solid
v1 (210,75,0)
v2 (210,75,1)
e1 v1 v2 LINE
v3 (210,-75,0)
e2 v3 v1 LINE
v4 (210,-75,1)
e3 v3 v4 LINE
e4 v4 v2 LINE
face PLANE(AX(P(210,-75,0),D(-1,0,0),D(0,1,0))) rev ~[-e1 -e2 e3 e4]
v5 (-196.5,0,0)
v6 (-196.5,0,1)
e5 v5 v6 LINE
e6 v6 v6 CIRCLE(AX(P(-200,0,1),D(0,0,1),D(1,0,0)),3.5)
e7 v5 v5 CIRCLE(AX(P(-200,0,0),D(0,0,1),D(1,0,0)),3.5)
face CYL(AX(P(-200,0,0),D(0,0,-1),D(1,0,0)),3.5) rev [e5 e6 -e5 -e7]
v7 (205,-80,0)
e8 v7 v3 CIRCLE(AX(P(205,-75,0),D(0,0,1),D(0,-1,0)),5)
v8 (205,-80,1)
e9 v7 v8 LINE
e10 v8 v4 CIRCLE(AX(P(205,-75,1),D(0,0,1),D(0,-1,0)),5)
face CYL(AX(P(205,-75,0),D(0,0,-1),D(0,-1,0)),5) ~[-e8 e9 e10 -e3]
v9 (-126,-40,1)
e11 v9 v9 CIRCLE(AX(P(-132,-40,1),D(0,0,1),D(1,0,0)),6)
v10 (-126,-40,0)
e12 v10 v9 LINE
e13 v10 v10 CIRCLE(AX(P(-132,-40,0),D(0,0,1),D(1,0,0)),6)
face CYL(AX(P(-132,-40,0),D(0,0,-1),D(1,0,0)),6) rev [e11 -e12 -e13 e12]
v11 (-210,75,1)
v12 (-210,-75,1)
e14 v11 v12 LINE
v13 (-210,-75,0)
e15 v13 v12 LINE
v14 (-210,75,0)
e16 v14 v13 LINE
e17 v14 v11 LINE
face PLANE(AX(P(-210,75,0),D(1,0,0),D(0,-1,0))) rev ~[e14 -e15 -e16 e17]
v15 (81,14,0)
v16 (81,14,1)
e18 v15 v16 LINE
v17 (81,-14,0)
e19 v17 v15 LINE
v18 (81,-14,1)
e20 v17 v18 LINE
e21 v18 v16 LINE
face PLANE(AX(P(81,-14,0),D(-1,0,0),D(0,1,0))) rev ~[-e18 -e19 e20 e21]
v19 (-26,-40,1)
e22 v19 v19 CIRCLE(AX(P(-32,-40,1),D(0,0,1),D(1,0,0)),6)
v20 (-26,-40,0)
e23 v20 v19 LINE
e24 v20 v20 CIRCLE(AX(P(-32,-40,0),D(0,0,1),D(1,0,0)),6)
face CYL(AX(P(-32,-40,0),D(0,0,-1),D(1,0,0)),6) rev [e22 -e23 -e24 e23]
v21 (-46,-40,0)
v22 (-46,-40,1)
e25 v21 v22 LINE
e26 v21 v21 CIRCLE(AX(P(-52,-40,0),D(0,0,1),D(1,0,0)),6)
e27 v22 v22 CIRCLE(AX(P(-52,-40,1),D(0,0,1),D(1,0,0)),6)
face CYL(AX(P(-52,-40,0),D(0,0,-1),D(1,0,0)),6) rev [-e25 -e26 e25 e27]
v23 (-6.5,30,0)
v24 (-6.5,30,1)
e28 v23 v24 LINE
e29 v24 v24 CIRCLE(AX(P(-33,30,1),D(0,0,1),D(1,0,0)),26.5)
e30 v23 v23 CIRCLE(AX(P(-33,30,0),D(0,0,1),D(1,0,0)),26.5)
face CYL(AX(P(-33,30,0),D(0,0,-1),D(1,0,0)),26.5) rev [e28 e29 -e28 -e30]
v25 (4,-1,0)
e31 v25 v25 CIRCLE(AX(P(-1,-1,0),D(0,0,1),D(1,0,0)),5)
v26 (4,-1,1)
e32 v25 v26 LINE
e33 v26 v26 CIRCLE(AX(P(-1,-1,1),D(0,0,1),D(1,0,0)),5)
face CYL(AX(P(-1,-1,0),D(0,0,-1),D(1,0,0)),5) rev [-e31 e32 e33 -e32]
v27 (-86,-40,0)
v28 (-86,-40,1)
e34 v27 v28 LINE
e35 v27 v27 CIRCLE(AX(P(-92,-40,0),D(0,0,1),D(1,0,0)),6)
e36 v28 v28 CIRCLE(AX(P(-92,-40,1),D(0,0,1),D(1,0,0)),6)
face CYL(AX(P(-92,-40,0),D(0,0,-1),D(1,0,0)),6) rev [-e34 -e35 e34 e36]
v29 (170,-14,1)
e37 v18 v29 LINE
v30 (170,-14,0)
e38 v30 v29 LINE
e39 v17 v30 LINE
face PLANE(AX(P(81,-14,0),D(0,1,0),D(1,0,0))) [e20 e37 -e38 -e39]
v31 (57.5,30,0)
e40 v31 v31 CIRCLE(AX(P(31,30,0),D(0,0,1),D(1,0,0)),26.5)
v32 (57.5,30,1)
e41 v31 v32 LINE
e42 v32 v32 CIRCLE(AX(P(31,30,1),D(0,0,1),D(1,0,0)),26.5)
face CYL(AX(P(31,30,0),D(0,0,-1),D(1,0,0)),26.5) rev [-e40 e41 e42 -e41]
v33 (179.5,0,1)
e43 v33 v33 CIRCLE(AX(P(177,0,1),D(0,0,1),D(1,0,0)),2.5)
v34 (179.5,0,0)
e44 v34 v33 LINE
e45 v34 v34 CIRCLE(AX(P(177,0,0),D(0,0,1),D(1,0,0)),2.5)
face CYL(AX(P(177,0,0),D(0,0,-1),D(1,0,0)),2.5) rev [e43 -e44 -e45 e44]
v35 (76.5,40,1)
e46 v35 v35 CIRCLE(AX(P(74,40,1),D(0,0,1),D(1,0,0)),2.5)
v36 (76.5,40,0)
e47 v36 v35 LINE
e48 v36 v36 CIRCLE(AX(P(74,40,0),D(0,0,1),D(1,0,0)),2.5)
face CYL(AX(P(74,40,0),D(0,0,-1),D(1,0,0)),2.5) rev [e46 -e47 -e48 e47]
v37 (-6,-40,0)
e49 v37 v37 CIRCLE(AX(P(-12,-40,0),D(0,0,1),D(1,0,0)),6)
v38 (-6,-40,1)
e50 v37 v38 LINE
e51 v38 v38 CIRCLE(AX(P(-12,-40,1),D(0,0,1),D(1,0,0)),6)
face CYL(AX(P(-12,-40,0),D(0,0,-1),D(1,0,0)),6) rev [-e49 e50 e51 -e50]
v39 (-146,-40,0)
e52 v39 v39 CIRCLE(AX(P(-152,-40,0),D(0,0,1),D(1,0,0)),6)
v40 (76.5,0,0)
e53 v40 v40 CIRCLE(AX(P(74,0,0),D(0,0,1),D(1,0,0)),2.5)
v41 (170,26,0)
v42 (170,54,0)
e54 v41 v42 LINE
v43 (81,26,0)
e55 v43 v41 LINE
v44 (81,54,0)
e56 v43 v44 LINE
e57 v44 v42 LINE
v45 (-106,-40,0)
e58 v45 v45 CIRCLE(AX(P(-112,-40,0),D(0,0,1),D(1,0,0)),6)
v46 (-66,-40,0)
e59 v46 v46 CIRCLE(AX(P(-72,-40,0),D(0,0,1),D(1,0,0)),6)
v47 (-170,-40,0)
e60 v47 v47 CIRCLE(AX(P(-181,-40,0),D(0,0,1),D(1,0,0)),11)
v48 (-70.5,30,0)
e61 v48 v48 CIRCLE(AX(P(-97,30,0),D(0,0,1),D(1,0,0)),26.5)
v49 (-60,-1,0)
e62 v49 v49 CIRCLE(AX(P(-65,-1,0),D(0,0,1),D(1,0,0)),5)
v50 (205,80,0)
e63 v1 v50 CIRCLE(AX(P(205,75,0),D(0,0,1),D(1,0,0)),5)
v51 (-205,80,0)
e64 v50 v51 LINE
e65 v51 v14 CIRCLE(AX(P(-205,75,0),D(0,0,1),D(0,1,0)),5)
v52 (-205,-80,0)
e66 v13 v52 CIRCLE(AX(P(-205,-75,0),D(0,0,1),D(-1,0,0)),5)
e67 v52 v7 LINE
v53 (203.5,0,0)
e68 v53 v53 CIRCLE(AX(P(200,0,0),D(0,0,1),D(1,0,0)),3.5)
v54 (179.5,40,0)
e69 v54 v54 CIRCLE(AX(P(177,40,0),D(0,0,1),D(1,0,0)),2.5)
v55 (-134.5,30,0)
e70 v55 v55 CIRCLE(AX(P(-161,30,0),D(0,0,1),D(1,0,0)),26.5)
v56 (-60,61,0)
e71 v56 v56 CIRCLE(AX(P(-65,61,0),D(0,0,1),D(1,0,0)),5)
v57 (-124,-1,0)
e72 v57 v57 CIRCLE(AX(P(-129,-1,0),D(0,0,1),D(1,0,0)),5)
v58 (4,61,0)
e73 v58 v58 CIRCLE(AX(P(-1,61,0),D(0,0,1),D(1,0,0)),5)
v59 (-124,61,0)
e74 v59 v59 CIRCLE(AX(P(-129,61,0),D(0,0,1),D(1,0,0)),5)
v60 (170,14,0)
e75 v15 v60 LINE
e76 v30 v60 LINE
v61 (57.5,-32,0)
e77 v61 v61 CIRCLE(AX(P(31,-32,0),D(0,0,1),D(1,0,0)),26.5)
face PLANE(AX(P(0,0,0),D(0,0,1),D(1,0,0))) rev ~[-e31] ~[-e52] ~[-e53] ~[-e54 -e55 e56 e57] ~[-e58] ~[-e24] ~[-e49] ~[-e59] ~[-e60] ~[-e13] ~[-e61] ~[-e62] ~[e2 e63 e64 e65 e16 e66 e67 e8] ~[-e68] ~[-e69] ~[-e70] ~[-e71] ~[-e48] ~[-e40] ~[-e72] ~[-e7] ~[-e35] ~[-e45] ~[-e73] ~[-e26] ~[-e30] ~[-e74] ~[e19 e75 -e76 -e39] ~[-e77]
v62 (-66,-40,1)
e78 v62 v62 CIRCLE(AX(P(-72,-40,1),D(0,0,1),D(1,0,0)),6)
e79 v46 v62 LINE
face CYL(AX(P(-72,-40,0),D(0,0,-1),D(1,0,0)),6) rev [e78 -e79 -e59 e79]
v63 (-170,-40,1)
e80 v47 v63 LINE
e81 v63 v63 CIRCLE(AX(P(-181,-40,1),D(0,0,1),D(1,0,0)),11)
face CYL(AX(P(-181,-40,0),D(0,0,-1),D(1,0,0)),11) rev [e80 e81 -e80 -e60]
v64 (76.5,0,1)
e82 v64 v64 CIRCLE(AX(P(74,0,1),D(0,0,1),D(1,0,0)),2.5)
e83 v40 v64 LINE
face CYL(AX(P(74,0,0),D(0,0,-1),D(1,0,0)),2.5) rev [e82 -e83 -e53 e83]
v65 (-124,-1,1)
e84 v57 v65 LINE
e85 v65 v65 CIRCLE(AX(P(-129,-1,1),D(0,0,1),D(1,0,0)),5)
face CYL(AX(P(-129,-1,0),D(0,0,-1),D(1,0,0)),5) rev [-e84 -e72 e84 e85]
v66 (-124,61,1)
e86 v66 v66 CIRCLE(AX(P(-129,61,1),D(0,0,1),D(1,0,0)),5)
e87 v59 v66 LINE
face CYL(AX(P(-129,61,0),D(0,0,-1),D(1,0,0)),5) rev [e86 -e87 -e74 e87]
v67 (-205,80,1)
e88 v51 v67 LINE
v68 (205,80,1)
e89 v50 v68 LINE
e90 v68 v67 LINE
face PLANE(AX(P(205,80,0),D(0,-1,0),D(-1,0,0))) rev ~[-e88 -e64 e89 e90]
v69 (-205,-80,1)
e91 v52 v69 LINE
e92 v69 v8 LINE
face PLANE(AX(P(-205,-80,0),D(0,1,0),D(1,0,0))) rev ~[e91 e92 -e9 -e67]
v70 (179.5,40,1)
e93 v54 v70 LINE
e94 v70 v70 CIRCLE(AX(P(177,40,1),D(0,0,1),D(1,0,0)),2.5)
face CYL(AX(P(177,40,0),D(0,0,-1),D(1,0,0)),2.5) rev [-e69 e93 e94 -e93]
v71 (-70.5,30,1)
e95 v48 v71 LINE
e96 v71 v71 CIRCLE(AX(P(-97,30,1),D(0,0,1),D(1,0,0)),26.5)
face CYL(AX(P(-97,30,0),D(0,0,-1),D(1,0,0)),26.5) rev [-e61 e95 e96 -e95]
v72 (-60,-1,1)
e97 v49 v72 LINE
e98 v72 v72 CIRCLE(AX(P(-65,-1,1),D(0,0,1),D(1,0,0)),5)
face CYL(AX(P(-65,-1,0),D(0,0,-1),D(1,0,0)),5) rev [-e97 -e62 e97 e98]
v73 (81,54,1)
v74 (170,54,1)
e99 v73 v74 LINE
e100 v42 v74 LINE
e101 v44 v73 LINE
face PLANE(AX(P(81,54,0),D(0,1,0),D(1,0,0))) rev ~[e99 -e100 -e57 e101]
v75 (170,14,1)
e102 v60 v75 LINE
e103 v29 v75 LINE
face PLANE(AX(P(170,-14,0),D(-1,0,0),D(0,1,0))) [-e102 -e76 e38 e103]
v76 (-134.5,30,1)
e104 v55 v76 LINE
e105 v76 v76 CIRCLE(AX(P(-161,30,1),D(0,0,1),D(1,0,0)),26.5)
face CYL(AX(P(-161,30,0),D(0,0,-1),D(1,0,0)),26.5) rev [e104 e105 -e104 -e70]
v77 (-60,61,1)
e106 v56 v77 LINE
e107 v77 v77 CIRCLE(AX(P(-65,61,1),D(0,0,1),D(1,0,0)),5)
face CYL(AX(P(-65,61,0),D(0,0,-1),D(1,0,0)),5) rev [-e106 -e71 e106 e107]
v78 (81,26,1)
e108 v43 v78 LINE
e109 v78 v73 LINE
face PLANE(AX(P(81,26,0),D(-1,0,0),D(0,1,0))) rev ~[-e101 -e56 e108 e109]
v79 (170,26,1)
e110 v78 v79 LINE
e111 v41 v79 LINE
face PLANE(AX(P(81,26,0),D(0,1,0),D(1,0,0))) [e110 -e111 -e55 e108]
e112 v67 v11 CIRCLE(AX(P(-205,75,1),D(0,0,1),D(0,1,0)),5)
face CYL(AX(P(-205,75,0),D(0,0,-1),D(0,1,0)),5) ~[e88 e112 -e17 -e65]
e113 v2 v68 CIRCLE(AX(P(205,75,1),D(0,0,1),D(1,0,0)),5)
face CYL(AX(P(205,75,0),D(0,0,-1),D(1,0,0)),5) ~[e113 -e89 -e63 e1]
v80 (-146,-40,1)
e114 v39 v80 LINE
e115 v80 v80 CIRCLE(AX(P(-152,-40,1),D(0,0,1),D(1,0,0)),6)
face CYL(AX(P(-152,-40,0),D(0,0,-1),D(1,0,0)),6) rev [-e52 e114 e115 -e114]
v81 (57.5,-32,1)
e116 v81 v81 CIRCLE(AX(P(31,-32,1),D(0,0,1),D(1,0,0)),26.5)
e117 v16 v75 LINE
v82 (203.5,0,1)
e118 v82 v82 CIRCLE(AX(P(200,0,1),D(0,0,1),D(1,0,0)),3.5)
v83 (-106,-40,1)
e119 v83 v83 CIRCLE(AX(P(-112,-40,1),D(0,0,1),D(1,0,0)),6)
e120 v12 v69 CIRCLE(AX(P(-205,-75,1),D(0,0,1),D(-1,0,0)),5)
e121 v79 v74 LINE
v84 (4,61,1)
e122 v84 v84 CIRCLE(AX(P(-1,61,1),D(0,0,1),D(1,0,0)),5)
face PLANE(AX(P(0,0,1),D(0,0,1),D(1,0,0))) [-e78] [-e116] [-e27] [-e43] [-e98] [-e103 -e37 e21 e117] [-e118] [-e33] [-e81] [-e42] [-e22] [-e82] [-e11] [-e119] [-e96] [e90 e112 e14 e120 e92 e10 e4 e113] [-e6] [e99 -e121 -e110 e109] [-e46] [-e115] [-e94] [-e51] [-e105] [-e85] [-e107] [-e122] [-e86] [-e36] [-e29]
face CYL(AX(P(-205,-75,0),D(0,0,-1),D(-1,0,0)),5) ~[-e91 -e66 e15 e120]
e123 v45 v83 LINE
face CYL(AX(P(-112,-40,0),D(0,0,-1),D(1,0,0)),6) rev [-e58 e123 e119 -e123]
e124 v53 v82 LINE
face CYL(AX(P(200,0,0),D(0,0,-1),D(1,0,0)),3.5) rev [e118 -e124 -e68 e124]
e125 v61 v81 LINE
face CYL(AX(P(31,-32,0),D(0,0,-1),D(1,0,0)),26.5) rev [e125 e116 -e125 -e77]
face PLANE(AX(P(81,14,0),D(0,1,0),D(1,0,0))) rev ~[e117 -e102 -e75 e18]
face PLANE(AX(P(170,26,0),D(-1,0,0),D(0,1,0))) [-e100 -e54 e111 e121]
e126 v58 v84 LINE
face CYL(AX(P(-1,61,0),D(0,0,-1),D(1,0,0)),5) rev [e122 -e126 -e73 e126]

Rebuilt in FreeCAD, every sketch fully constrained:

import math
import FreeCAD as App
import Part
import Sketcher
from FreeCAD import Vector


def add_polygon(sketch, points):
    """Adds a closed chain of lines whose ends are joined by coincident constraints."""
    first, n = sketch.GeometryCount, len(points)
    for a, b in zip(points, points[1:] + points[:1]):
        sketch.addGeometry(Part.LineSegment(App.Vector(*a, 0), App.Vector(*b, 0)), False)
    for i in range(n):
        sketch.addConstraint(Sketcher.Constraint("Coincident", first + i, 2, first + (i + 1) % n, 1))

doc = App.newDocument("Part")
body = doc.addObject("PartDesign::Body", "Body")

# Sketch on XY plane
sketch1 = body.newObject("Sketcher::SketchObject", "Sketch")
sketch1.AttachmentSupport = (doc.getObject("XY_Plane"), [""])
sketch1.MapMode = "FlatFace"
sketch1.addGeometry(Part.LineSegment(Vector(205, 80, 0), Vector(-205, 80, 0)), False)  # 0
sketch1.addGeometry(Part.ArcOfCircle(Part.Circle(Vector(-205, 75, 0), Vector(0, 0, 1), 5), math.radians(90), math.radians(180)), False)  # 1
sketch1.addGeometry(Part.LineSegment(Vector(-210, 75, 0), Vector(-210, -75, 0)), False)  # 2
sketch1.addGeometry(Part.ArcOfCircle(Part.Circle(Vector(-205, -75, 0), Vector(0, 0, 1), 5), math.radians(180), math.radians(270)), False)  # 3
sketch1.addGeometry(Part.LineSegment(Vector(-205, -80, 0), Vector(205, -80, 0)), False)  # 4
sketch1.addGeometry(Part.ArcOfCircle(Part.Circle(Vector(205, -75, 0), Vector(0, 0, 1), 5), math.radians(-90), math.radians(0)), False)  # 5
sketch1.addGeometry(Part.LineSegment(Vector(210, -75, 0), Vector(210, 75, 0)), False)  # 6
sketch1.addGeometry(Part.ArcOfCircle(Part.Circle(Vector(205, 75, 0), Vector(0, 0, 1), 5), math.radians(0), math.radians(90)), False)  # 7
sketch1.addGeometry(Part.Circle(Vector(-181, -40, 0), Vector(0, 0, 1), 11), False)  # 8
sketch1.addGeometry(Part.Circle(Vector(-152, -40, 0), Vector(0, 0, 1), 6), False)  # 9
sketch1.addGeometry(Part.Circle(Vector(-132, -40, 0), Vector(0, 0, 1), 6), False)  # 10
sketch1.addGeometry(Part.Circle(Vector(-112, -40, 0), Vector(0, 0, 1), 6), False)  # 11
sketch1.addGeometry(Part.Circle(Vector(-92, -40, 0), Vector(0, 0, 1), 6), False)  # 12
sketch1.addGeometry(Part.Circle(Vector(-72, -40, 0), Vector(0, 0, 1), 6), False)  # 13
sketch1.addGeometry(Part.Circle(Vector(-52, -40, 0), Vector(0, 0, 1), 6), False)  # 14
sketch1.addGeometry(Part.Circle(Vector(-32, -40, 0), Vector(0, 0, 1), 6), False)  # 15
sketch1.addGeometry(Part.Circle(Vector(-12, -40, 0), Vector(0, 0, 1), 6), False)  # 16
sketch1.addGeometry(Part.Circle(Vector(-200, 0, 0), Vector(0, 0, 1), 3.5), False)  # 17
sketch1.addGeometry(Part.Circle(Vector(-129, -1, 0), Vector(0, 0, 1), 5), False)  # 18
sketch1.addGeometry(Part.Circle(Vector(-65, -1, 0), Vector(0, 0, 1), 5), False)  # 19
sketch1.addGeometry(Part.Circle(Vector(-1, -1, 0), Vector(0, 0, 1), 5), False)  # 20
sketch1.addGeometry(Part.Circle(Vector(31, -32, 0), Vector(0, 0, 1), 26.5), False)  # 21
sketch1.addGeometry(Part.Circle(Vector(74, 0, 0), Vector(0, 0, 1), 2.5), False)  # 22
add_polygon(sketch1, [(170, -14), (81, -14), (81, 14), (170, 14)])  # lines 23-26
sketch1.addGeometry(Part.Circle(Vector(177, 0, 0), Vector(0, 0, 1), 2.5), False)  # 27
sketch1.addGeometry(Part.Circle(Vector(200, 0, 0), Vector(0, 0, 1), 3.5), False)  # 28
sketch1.addGeometry(Part.Circle(Vector(-161, 30, 0), Vector(0, 0, 1), 26.5), False)  # 29
sketch1.addGeometry(Part.Circle(Vector(-97, 30, 0), Vector(0, 0, 1), 26.5), False)  # 30
sketch1.addGeometry(Part.Circle(Vector(-33, 30, 0), Vector(0, 0, 1), 26.5), False)  # 31
sketch1.addGeometry(Part.Circle(Vector(-129, 61, 0), Vector(0, 0, 1), 5), False)  # 32
sketch1.addGeometry(Part.Circle(Vector(-65, 61, 0), Vector(0, 0, 1), 5), False)  # 33
sketch1.addGeometry(Part.Circle(Vector(-1, 61, 0), Vector(0, 0, 1), 5), False)  # 34
sketch1.addGeometry(Part.Circle(Vector(31, 30, 0), Vector(0, 0, 1), 26.5), False)  # 35
sketch1.addGeometry(Part.Circle(Vector(74, 40, 0), Vector(0, 0, 1), 2.5), False)  # 36
add_polygon(sketch1, [(170, 26), (81, 26), (81, 54), (170, 54)])  # lines 37-40
sketch1.addGeometry(Part.Circle(Vector(177, 40, 0), Vector(0, 0, 1), 2.5), False)  # 41
sketch1.addConstraint([
    Sketcher.Constraint("Tangent", 0, 2, 1, 1),
    Sketcher.Constraint("Tangent", 1, 2, 2, 1),
    Sketcher.Constraint("Tangent", 2, 2, 3, 1),
    Sketcher.Constraint("Tangent", 3, 2, 4, 1),
    Sketcher.Constraint("Tangent", 4, 2, 5, 1),
    Sketcher.Constraint("Tangent", 5, 2, 6, 1),
    Sketcher.Constraint("Tangent", 6, 2, 7, 1),
    Sketcher.Constraint("Tangent", 7, 2, 0, 1),
    Sketcher.Constraint("Horizontal", 0),
    Sketcher.Constraint("Vertical", 2),
    Sketcher.Constraint("Horizontal", 4),
    Sketcher.Constraint("Vertical", 6),
    Sketcher.Constraint("Horizontal", 23),
    Sketcher.Constraint("Vertical", 24),
    Sketcher.Constraint("Horizontal", 25),
    Sketcher.Constraint("Vertical", 26),
    Sketcher.Constraint("Horizontal", 37),
    Sketcher.Constraint("Vertical", 38),
    Sketcher.Constraint("Horizontal", 39),
    Sketcher.Constraint("Vertical", 40),
    Sketcher.Constraint("Equal", 1, 3),
    Sketcher.Constraint("Equal", 3, 5),
    Sketcher.Constraint("Equal", 5, 7),
    Sketcher.Constraint("Equal", 9, 10),
    Sketcher.Constraint("Equal", 10, 11),
    Sketcher.Constraint("Equal", 11, 12),
    Sketcher.Constraint("Equal", 12, 13),
    Sketcher.Constraint("Equal", 13, 14),
    Sketcher.Constraint("Equal", 14, 15),
    Sketcher.Constraint("Equal", 15, 16),
    Sketcher.Constraint("Equal", 7, 18),
    Sketcher.Constraint("Equal", 18, 19),
    Sketcher.Constraint("Equal", 19, 20),
    Sketcher.Constraint("Equal", 22, 27),
    Sketcher.Constraint("Equal", 17, 28),
    Sketcher.Constraint("Equal", 21, 29),
    Sketcher.Constraint("Equal", 29, 30),
    Sketcher.Constraint("Equal", 30, 31),
    Sketcher.Constraint("Equal", 20, 32),
    Sketcher.Constraint("Equal", 32, 33),
    Sketcher.Constraint("Equal", 33, 34),
    Sketcher.Constraint("Equal", 31, 35),
    Sketcher.Constraint("Equal", 27, 36),
    Sketcher.Constraint("Equal", 36, 41),
    Sketcher.Constraint("Symmetric", 1, 3, 5, 3, -1, 1),
    Sketcher.Constraint("Symmetric", 17, 3, 28, 3, -1, 1),
    Sketcher.Constraint("PointOnObject", 17, 3, -1),
    Sketcher.Constraint("PointOnObject", 22, 3, -1),
    Sketcher.Constraint("PointOnObject", 27, 3, -1),
    Sketcher.Constraint("Horizontal", 8, 3, 9, 3),
    Sketcher.Constraint("Horizontal", 9, 3, 10, 3),
    Sketcher.Constraint("Horizontal", 10, 3, 11, 3),
    Sketcher.Constraint("Horizontal", 11, 3, 12, 3),
    Sketcher.Constraint("Horizontal", 12, 3, 13, 3),
    Sketcher.Constraint("Horizontal", 13, 3, 14, 3),
    Sketcher.Constraint("Horizontal", 14, 3, 15, 3),
    Sketcher.Constraint("Horizontal", 15, 3, 16, 3),
    Sketcher.Constraint("Horizontal", 18, 3, 19, 3),
    Sketcher.Constraint("Horizontal", 19, 3, 20, 3),
    Sketcher.Constraint("Horizontal", 29, 3, 30, 3),
    Sketcher.Constraint("Horizontal", 30, 3, 31, 3),
    Sketcher.Constraint("Horizontal", 32, 3, 33, 3),
    Sketcher.Constraint("Horizontal", 33, 3, 34, 3),
    Sketcher.Constraint("Horizontal", 31, 3, 35, 3),
    Sketcher.Constraint("Horizontal", 36, 3, 41, 3),
    Sketcher.Constraint("Vertical", 18, 3, 32, 3),
    Sketcher.Constraint("Vertical", 19, 3, 33, 3),
    Sketcher.Constraint("Vertical", 20, 3, 34, 3),
    Sketcher.Constraint("Vertical", 21, 3, 35, 3),
    Sketcher.Constraint("Vertical", 22, 3, 36, 3),
    Sketcher.Constraint("Vertical", 27, 3, 41, 3),
    Sketcher.Constraint("Vertical", 24, 2, 37, 2),
    Sketcher.Constraint("Vertical", 26, 2, 39, 2),
    Sketcher.Constraint("Equal", 26, 38),
    Sketcher.Constraint("Diameter", 8, 22.0),
    Sketcher.Constraint("Diameter", 9, 12.0),
    Sketcher.Constraint("Diameter", 17, 7.0),
    Sketcher.Constraint("Diameter", 18, 10.0),
    Sketcher.Constraint("Diameter", 21, 53.0),
    Sketcher.Constraint("Diameter", 22, 5.0),
    Sketcher.Constraint("DistanceX", 0, 2, 0, 1, 410.0),
    Sketcher.Constraint("DistanceX", 23, 2, 23, 1, 89.0),
    Sketcher.Constraint("DistanceY", 2, 2, 2, 1, 150.0),
    Sketcher.Constraint("DistanceY", 24, 1, 24, 2, 28.0),
    Sketcher.Constraint("DistanceX", 8, 3, -1, 1, 181.0),
    Sketcher.Constraint("DistanceY", 8, 3, -1, 1, 40.0),
    Sketcher.Constraint("DistanceX", 9, 3, -1, 1, 152.0),
    Sketcher.Constraint("DistanceX", 10, 3, -1, 1, 132.0),
    Sketcher.Constraint("DistanceX", 11, 3, -1, 1, 112.0),
    Sketcher.Constraint("DistanceX", 12, 3, -1, 1, 92.0),
    Sketcher.Constraint("DistanceX", 13, 3, -1, 1, 72.0),
    Sketcher.Constraint("DistanceX", 14, 3, -1, 1, 52.0),
    Sketcher.Constraint("DistanceX", 15, 3, -1, 1, 32.0),
    Sketcher.Constraint("DistanceX", 16, 3, -1, 1, 12.0),
    Sketcher.Constraint("DistanceX", 17, 3, -1, 1, 200.0),
    Sketcher.Constraint("DistanceX", 18, 3, -1, 1, 129.0),
    Sketcher.Constraint("DistanceY", 18, 3, -1, 1, 1.0),
    Sketcher.Constraint("DistanceX", 19, 3, -1, 1, 65.0),
    Sketcher.Constraint("DistanceX", 20, 3, -1, 1, 1.0),
    Sketcher.Constraint("DistanceX", -1, 1, 21, 3, 31.0),
    Sketcher.Constraint("DistanceY", 21, 3, -1, 1, 32.0),
    Sketcher.Constraint("DistanceX", -1, 1, 22, 3, 74.0),
    Sketcher.Constraint("DistanceX", -1, 1, 27, 3, 177.0),
    Sketcher.Constraint("DistanceX", 29, 3, -1, 1, 161.0),
    Sketcher.Constraint("DistanceY", -1, 1, 29, 3, 30.0),
    Sketcher.Constraint("DistanceX", 30, 3, -1, 1, 97.0),
    Sketcher.Constraint("DistanceX", 31, 3, -1, 1, 33.0),
    Sketcher.Constraint("DistanceY", -1, 1, 32, 3, 61.0),
    Sketcher.Constraint("DistanceY", -1, 1, 36, 3, 40.0),
    Sketcher.Constraint("DistanceX", -1, 1, 23, 2, 81.0),
    Sketcher.Constraint("DistanceY", 23, 2, -1, 1, 14.0),
    Sketcher.Constraint("DistanceY", -1, 1, 37, 2, 26.0),
])
pad1 = body.newObject("PartDesign::Pad", "Pad")
pad1.Profile = sketch1
pad1.Length = 1

doc.recompute()
